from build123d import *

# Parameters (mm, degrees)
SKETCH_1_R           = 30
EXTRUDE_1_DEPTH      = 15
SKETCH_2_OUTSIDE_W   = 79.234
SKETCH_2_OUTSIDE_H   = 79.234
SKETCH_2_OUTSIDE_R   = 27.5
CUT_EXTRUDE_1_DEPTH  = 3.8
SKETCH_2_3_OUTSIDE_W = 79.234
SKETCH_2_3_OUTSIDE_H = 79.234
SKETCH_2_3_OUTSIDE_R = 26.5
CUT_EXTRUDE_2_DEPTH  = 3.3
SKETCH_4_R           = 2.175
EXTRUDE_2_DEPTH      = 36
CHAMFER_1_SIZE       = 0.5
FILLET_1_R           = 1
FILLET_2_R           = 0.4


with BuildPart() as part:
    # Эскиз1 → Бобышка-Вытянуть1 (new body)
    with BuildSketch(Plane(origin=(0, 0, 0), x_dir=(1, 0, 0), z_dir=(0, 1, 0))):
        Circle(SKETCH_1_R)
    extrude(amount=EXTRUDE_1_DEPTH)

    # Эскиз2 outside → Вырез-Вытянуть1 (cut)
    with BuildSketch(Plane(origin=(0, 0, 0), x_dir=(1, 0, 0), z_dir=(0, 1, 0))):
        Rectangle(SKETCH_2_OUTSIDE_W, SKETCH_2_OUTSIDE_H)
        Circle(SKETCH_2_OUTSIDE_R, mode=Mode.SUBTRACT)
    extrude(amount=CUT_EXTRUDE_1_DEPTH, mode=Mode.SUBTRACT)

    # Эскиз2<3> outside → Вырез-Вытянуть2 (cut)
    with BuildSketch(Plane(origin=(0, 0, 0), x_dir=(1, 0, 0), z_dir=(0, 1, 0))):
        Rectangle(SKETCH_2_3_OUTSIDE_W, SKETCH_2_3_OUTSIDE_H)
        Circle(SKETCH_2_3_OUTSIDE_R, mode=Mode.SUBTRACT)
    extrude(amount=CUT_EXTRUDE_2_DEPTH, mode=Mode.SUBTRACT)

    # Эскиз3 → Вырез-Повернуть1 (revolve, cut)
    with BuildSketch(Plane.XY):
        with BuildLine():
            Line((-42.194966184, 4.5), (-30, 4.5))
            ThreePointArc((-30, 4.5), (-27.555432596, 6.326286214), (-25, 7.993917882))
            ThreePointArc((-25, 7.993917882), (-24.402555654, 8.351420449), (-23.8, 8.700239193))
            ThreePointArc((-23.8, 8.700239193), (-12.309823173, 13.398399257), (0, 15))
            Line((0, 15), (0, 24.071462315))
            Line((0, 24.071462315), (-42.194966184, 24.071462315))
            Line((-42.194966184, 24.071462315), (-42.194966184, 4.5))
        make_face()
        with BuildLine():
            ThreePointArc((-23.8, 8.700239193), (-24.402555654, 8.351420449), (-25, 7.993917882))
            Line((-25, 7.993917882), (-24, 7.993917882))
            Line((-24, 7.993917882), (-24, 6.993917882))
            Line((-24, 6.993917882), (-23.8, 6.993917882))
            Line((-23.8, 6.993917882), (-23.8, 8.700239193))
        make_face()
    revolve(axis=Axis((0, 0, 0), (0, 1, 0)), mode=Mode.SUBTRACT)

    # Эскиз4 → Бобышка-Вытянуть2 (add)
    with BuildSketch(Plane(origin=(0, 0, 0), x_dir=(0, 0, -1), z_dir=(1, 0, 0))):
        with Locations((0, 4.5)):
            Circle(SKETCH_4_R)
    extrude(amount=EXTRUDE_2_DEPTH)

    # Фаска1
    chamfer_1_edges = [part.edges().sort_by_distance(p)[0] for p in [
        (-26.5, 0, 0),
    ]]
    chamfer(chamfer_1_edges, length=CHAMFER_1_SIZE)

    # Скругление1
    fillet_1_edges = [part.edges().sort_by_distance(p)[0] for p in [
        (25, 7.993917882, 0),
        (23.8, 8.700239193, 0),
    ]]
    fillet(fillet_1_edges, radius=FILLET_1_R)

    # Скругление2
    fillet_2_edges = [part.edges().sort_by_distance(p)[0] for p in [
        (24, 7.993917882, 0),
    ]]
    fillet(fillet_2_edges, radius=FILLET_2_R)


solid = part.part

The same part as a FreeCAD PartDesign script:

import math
import FreeCAD as App
import Part
import Sketcher

V = App.Vector
Q = App.Units.Quantity


def edges_at(feature, points):
    """Names of the edges that pass closest to the given points."""
    edges = feature.Shape.Edges
    near = lambda p: min(range(len(edges)), key=lambda i: edges[i].distToShape(Part.Vertex(*p))[0])
    return sorted({f"Edge{near(p) + 1}" for p in points})


def add_polygon(sketch, points):
    """Adds a closed chain of lines whose ends are joined by coincident constraints."""
    first, n = sketch.GeometryCount, len(points)
    for a, b in zip(points, points[1:] + points[:1]):
        sketch.addGeometry(Part.LineSegment(App.Vector(*a, 0), App.Vector(*b, 0)), False)
    for i in range(n):
        sketch.addConstraint(Sketcher.Constraint("Coincident", first + i, 2, first + (i + 1) % n, 1))

doc = App.newDocument("Part")
params = doc.addObject("Spreadsheet::Sheet", "Params")
for row, (alias, value) in enumerate([
    ("sketch1_diameter", "60 mm"),
    ("pad1_length", "15 mm"),
    ("sketch2_diameter", "55 mm"),
    ("pocket1_length", "3.8 mm"),
    ("sketch3_diameter", "53 mm"),
    ("pocket2_length", "3.3 mm"),
    ("sketch4_width", "1 mm"),
    ("sketch4_width2", "0.2 mm"),
    ("groove_angle", "360 deg"),
    ("sketch5_diameter", "4.35 mm"),
    ("pad2_length", "36 mm"),
    ("chamfer_size", "0.5 mm"),
    ("fillet_radius", "1 mm"),
    ("fillet2_radius", "0.4 mm"),
], start=1):
    params.set(f"A{row}", alias)
    params.set(f"B{row}", "=" + value)
    params.setAlias(f"B{row}", alias)

body = doc.addObject("PartDesign::Body", "Body")

# Sketch on XZ plane
sketch1 = body.newObject("Sketcher::SketchObject", "Sketch")
sketch1.AttachmentSupport = (doc.getObject("XZ_Plane"), [""])
sketch1.MapMode = "FlatFace"
sketch1.addGeometry(Part.Circle(V(0, 0, 0), V(0, 0, 1), 30), False)
sketch1.addConstraint([
    Sketcher.Constraint("Coincident", 0, 3, -1, 1),
    Sketcher.Constraint("Diameter", 0, Q("60 mm")),
])
sketch1.setExpression("Constraints[1]", "Params.sketch1_diameter")
pad1 = body.newObject("PartDesign::Pad", "Pad")
pad1.Profile = sketch1
pad1.setExpression("Length", "Params.pad1_length")
pad1.Reversed = True

# Sketch on XZ plane
sketch2 = body.newObject("Sketcher::SketchObject", "Sketch001")
sketch2.AttachmentSupport = (doc.getObject("XZ_Plane"), [""])
sketch2.MapMode = "FlatFace"
add_polygon(sketch2, [(-39.617, -39.617), (-39.617, 39.617), (39.617, 39.617), (39.617, -39.617)])  # lines 0-3
sketch2.addGeometry(Part.Circle(V(0, 0, 0), V(0, 0, 1), 27.5), False)  # 4
sketch2.addConstraint([
    Sketcher.Constraint("Vertical", 0),
    Sketcher.Constraint("Horizontal", 1),
    Sketcher.Constraint("Vertical", 2),
    Sketcher.Constraint("Horizontal", 3),
    Sketcher.Constraint("Coincident", 4, 3, -1, 1),
    Sketcher.Constraint("Symmetric", 0, 2, 2, 2, -1, 1),
    Sketcher.Constraint("Equal", 3, 0),
    Sketcher.Constraint("Diameter", 4, Q("55 mm")),
    Sketcher.Constraint("DistanceX", 1, 1, 1, 2, Q("79.234 mm")),
])
sketch2.setExpression("Constraints[11]", "Params.sketch2_diameter")
pocket1 = body.newObject("PartDesign::Pocket", "Pocket")
pocket1.Profile = sketch2
pocket1.setExpression("Length", "Params.pocket1_length")

# Sketch on XZ plane
sketch3 = body.newObject("Sketcher::SketchObject", "Sketch002")
sketch3.AttachmentSupport = (doc.getObject("XZ_Plane"), [""])
sketch3.MapMode = "FlatFace"
add_polygon(sketch3, [(-39.617, -39.617), (-39.617, 39.617), (39.617, 39.617), (39.617, -39.617)])  # lines 0-3
sketch3.addGeometry(Part.Circle(V(0, 0, 0), V(0, 0, 1), 26.5), False)  # 4
sketch3.addConstraint([
    Sketcher.Constraint("Vertical", 0),
    Sketcher.Constraint("Horizontal", 1),
    Sketcher.Constraint("Vertical", 2),
    Sketcher.Constraint("Horizontal", 3),
    Sketcher.Constraint("Coincident", 4, 3, -1, 1),
    Sketcher.Constraint("Symmetric", 0, 2, 2, 2, -1, 1),
    Sketcher.Constraint("Equal", 3, 0),
    Sketcher.Constraint("Diameter", 4, Q("53 mm")),
    Sketcher.Constraint("DistanceX", 1, 1, 1, 2, Q("79.234 mm")),
])
sketch3.setExpression("Constraints[11]", "Params.sketch3_diameter")
pocket2 = body.newObject("PartDesign::Pocket", "Pocket001")
pocket2.Profile = sketch3
pocket2.setExpression("Length", "Params.pocket2_length")

# Sketch on XY plane
sketch4 = body.newObject("Sketcher::SketchObject", "Sketch003")
sketch4.AttachmentSupport = (doc.getObject("XY_Plane"), [""])
sketch4.MapMode = "FlatFace"
sketch4.addGeometry([
    Part.LineSegment(V(-42.194966, 4.5, 0), V(-30, 4.5, 0)),  # 0
    Part.ArcOfCircle(Part.Circle(V(0, -33.107143, 0), V(0, 0, 1), 48.107143), math.radians(121.310343), math.radians(128.580092)),  # 1
    Part.LineSegment(V(-25, 7.993918, 0), V(-24, 7.993918, 0)),  # 2
    Part.LineSegment(V(-24, 7.993918, 0), V(-24, 6.993918, 0)),  # 3
    Part.LineSegment(V(-24, 6.993918, 0), V(-23.8, 6.993918, 0)),  # 4
    Part.LineSegment(V(-23.8, 6.993918, 0), V(-23.8, 8.700239, 0)),  # 5
    Part.ArcOfCircle(Part.Circle(V(0, -33.107143, 0), V(0, 0, 1), 48.107143), math.radians(90), math.radians(119.651884)),  # 6
    Part.LineSegment(V(0, 15, 0), V(0, 24.071462, 0)),  # 7
    Part.LineSegment(V(0, 24.071462, 0), V(-42.194966, 24.071462, 0)),  # 8
    Part.LineSegment(V(-42.194966, 24.071462, 0), V(-42.194966, 4.5, 0)),  # 9
], False)
sketch4.addConstraint([
    Sketcher.Constraint("Coincident", 0, 2, 1, 2),
    Sketcher.Constraint("Coincident", 1, 1, 2, 1),
    Sketcher.Constraint("Coincident", 2, 2, 3, 1),
    Sketcher.Constraint("Coincident", 3, 2, 4, 1),
    Sketcher.Constraint("Coincident", 4, 2, 5, 1),
    Sketcher.Constraint("Coincident", 5, 2, 6, 2),
    Sketcher.Constraint("Coincident", 6, 1, 7, 1),
    Sketcher.Constraint("Coincident", 7, 2, 8, 1),
    Sketcher.Constraint("Coincident", 8, 2, 9, 1),
    Sketcher.Constraint("Coincident", 9, 2, 0, 1),
    Sketcher.Constraint("Horizontal", 0),
    Sketcher.Constraint("Horizontal", 2),
    Sketcher.Constraint("Vertical", 3),
    Sketcher.Constraint("Horizontal", 4),
    Sketcher.Constraint("Vertical", 5),
    Sketcher.Constraint("Vertical", 7),
    Sketcher.Constraint("Horizontal", 8),
    Sketcher.Constraint("Vertical", 9),
    Sketcher.Constraint("Coincident", 6, 3, 1, 3),
    Sketcher.Constraint("Equal", 1, 6),
    Sketcher.Constraint("PointOnObject", 1, 3, -2),
    Sketcher.Constraint("PointOnObject", 6, 1, -2),
    Sketcher.Constraint("Equal", 2, 3),
    Sketcher.Constraint("DistanceX", 2, 1, 2, 2, Q("1 mm")),
    Sketcher.Constraint("DistanceX", 4, 1, 4, 2, Q("0.2 mm")),
    Sketcher.Constraint("DistanceX", 0, 2, -1, 1, Q("30 mm")),
    Sketcher.Constraint("DistanceX", 1, 1, -1, 1, Q("25 mm")),
    Sketcher.Constraint("DistanceY", -1, 1, 6, 1, Q("15 mm")),
    Sketcher.Constraint("DistanceY", -1, 1, 0, 2, Q("4.5 mm")),
    Sketcher.Constraint("DistanceX", 0, 1, 0, 2, Q("12.194966 mm")),
    Sketcher.Constraint("DistanceY", 7, 1, 7, 2, Q("9.071462 mm")),
])
sketch4.setExpression("Constraints[23]", "Params.sketch4_width")
sketch4.setExpression("Constraints[24]", "Params.sketch4_width2")
groove = body.newObject("PartDesign::Groove", "Groove")
groove.Profile = sketch4
groove.ReferenceAxis = (sketch4, ["V_Axis"])
groove.setExpression("Angle", "Params.groove_angle")

# Sketch on YZ plane
sketch5 = body.newObject("Sketcher::SketchObject", "Sketch004")
sketch5.AttachmentSupport = (doc.getObject("YZ_Plane"), [""])
sketch5.MapMode = "FlatFace"
sketch5.addGeometry(Part.Circle(V(4.5, 0, 0), V(0, 0, 1), 2.175), False)
sketch5.addConstraint([
    Sketcher.Constraint("PointOnObject", 0, 3, -1),
    Sketcher.Constraint("Diameter", 0, Q("4.35 mm")),
    Sketcher.Constraint("DistanceX", -1, 1, 0, 3, Q("4.5 mm")),
])
sketch5.setExpression("Constraints[1]", "Params.sketch5_diameter")
pad2 = body.newObject("PartDesign::Pad", "Pad001")
pad2.Profile = sketch5
pad2.setExpression("Length", "Params.pad2_length")
doc.recompute()

chamfer = body.newObject("PartDesign::Chamfer", "Chamfer")
chamfer.Base = (pad2, edges_at(pad2, [(-26.5, 0, 0)]))
chamfer.setExpression("Size", "Params.chamfer_size")
doc.recompute()

fillet = body.newObject("PartDesign::Fillet", "Fillet")
fillet.Base = (chamfer, edges_at(chamfer, [(25, 7.994, 0), (23.8, 8.7, 0)]))
fillet.setExpression("Radius", "Params.fillet_radius")
doc.recompute()

fillet2 = body.newObject("PartDesign::Fillet", "Fillet001")
fillet2.Base = (fillet, edges_at(fillet, [(24, 7.994, 0)]))
fillet2.setExpression("Radius", "Params.fillet2_radius")

doc.recompute()
